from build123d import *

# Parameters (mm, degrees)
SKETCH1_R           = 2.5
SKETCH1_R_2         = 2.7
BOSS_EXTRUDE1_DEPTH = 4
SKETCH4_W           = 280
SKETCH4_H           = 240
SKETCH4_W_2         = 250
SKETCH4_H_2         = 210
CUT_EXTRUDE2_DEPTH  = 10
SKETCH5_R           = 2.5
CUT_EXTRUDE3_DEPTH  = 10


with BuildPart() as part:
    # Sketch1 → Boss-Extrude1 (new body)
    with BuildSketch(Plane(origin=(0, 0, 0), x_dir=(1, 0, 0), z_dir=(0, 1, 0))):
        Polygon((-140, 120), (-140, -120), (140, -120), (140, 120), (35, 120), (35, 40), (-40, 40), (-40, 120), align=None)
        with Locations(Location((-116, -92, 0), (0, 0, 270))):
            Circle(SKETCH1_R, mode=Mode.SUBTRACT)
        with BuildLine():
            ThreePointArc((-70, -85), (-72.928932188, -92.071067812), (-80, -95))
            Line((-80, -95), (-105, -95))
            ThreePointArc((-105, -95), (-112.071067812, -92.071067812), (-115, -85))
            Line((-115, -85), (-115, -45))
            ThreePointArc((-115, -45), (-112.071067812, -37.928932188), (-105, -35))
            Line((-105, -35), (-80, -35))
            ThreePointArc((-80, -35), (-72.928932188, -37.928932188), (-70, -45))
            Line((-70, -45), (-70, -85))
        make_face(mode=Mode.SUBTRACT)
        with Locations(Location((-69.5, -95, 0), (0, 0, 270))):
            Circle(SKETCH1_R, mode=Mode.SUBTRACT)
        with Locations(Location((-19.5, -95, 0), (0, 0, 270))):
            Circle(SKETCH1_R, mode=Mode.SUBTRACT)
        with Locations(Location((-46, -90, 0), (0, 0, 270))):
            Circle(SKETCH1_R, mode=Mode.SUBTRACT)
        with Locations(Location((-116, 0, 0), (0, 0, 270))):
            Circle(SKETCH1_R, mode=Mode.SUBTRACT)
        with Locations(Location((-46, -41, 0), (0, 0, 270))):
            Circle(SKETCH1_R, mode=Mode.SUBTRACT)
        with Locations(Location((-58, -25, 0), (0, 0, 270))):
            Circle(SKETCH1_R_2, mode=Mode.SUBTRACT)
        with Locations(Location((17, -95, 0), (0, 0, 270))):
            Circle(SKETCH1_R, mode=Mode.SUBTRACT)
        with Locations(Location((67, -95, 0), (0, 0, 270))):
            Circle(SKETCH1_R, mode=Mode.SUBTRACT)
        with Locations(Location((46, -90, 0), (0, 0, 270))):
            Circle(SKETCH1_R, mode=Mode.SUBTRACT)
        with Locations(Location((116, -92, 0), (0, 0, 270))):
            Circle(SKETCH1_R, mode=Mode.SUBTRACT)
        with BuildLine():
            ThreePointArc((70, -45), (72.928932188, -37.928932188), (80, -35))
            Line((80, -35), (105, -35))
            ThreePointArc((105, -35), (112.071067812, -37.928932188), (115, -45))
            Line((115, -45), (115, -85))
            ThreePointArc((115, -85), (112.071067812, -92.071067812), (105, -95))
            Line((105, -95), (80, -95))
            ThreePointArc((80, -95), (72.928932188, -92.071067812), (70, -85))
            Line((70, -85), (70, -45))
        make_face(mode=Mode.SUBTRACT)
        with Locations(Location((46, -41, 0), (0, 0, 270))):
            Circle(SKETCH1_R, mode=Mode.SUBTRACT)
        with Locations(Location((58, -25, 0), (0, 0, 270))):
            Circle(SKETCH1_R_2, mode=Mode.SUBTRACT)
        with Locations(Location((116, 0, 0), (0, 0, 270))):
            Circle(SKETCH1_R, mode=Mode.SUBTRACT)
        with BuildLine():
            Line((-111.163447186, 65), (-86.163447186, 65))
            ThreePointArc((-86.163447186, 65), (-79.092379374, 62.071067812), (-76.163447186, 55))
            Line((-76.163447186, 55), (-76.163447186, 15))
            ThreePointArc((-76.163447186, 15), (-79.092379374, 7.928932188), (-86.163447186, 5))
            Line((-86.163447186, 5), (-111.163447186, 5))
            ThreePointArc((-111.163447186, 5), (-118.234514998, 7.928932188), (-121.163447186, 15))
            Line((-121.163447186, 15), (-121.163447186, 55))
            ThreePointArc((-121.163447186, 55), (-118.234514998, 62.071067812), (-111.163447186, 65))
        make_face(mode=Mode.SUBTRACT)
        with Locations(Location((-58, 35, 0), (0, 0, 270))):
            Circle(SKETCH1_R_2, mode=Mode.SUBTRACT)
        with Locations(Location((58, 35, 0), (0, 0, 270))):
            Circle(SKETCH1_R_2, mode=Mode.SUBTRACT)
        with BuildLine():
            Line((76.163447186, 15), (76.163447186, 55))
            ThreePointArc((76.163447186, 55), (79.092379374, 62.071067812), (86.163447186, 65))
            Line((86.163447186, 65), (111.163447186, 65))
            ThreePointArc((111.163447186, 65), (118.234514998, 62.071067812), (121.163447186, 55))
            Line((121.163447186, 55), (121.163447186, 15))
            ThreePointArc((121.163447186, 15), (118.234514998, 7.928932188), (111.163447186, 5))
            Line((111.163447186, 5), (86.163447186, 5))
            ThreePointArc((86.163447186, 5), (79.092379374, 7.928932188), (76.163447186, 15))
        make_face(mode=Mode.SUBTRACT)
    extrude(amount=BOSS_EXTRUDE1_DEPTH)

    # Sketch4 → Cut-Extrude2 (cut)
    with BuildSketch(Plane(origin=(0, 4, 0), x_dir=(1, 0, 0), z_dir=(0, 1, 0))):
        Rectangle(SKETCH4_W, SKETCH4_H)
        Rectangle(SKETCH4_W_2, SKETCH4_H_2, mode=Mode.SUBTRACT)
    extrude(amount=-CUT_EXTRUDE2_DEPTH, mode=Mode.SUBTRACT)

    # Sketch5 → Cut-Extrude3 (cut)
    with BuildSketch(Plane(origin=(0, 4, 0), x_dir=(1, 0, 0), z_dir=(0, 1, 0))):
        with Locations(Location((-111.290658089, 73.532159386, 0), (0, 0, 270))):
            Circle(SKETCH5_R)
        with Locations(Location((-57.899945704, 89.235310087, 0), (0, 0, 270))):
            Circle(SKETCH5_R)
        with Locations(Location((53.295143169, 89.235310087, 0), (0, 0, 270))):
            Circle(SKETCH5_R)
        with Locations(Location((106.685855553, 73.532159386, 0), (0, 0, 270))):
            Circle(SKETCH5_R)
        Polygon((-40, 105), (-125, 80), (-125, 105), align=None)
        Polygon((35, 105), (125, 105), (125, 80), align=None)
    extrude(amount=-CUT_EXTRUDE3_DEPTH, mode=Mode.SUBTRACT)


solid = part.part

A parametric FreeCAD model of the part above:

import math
import FreeCAD as App
import Part
import Sketcher

V = App.Vector


def add_polygon(sketch, points):
    """Adds a closed chain of lines whose ends are joined by coincident constraints."""
    first, n = sketch.GeometryCount, len(points)
    for a, b in zip(points, points[1:] + points[:1]):
        sketch.addGeometry(Part.LineSegment(App.Vector(*a, 0), App.Vector(*b, 0)), False)
    for i in range(n):
        sketch.addConstraint(Sketcher.Constraint("Coincident", first + i, 2, first + (i + 1) % n, 1))

doc = App.newDocument("Part")
body = doc.addObject("PartDesign::Body", "Body")

# Sketch on XZ plane
sketch1 = body.newObject("Sketcher::SketchObject", "Sketch")
sketch1.AttachmentSupport = (doc.getObject("XZ_Plane"), [""])
sketch1.MapMode = "FlatFace"
add_polygon(sketch1, [(-140, -120), (-140, 120), (140, 120), (140, -120), (35, -120), (35, -40), (-40, -40), (-40, -120)])  # lines 0-7
sketch1.addGeometry(Part.Circle(V(-116, 92, 0), V(0, 0, 1), 2.5), False)  # 8
sketch1.addGeometry(Part.Circle(V(-69.5, 95, 0), V(0, 0, 1), 2.5), False)  # 9
sketch1.addGeometry(Part.LineSegment(V(-70, 45, 0), V(-70, 85, 0)), False)  # 10
sketch1.addGeometry(Part.ArcOfCircle(Part.Circle(V(-80, 85, 0), V(0, 0, 1), 10), math.radians(0), math.radians(90)), False)  # 11
sketch1.addGeometry(Part.LineSegment(V(-80, 95, 0), V(-105, 95, 0)), False)  # 12
sketch1.addGeometry(Part.ArcOfCircle(Part.Circle(V(-105, 85, 0), V(0, 0, 1), 10), math.radians(90), math.radians(180)), False)  # 13
sketch1.addGeometry(Part.LineSegment(V(-115, 85, 0), V(-115, 45, 0)), False)  # 14
sketch1.addGeometry(Part.ArcOfCircle(Part.Circle(V(-105, 45, 0), V(0, 0, 1), 10), math.radians(180), math.radians(270)), False)  # 15
sketch1.addGeometry(Part.LineSegment(V(-105, 35, 0), V(-80, 35, 0)), False)  # 16
sketch1.addGeometry(Part.ArcOfCircle(Part.Circle(V(-80, 45, 0), V(0, 0, 1), 10), math.radians(-90), math.radians(0)), False)  # 17
sketch1.addGeometry(Part.Circle(V(-46, 90, 0), V(0, 0, 1), 2.5), False)  # 18
sketch1.addGeometry(Part.Circle(V(-19.5, 95, 0), V(0, 0, 1), 2.5), False)  # 19
sketch1.addGeometry(Part.Circle(V(-46, 41, 0), V(0, 0, 1), 2.5), False)  # 20
sketch1.addGeometry(Part.Circle(V(-58, 25, 0), V(0, 0, 1), 2.7), False)  # 21
sketch1.addGeometry(Part.Circle(V(17, 95, 0), V(0, 0, 1), 2.5), False)  # 22
sketch1.addGeometry(Part.Circle(V(46, 90, 0), V(0, 0, 1), 2.5), False)  # 23
sketch1.addGeometry(Part.Circle(V(67, 95, 0), V(0, 0, 1), 2.5), False)  # 24
sketch1.addGeometry(Part.Circle(V(116, 92, 0), V(0, 0, 1), 2.5), False)  # 25
sketch1.addGeometry(Part.LineSegment(V(70, 85, 0), V(70, 45, 0)), False)  # 26
sketch1.addGeometry(Part.ArcOfCircle(Part.Circle(V(80, 45, 0), V(0, 0, 1), 10), math.radians(180), math.radians(270)), False)  # 27
sketch1.addGeometry(Part.LineSegment(V(80, 35, 0), V(105, 35, 0)), False)  # 28
sketch1.addGeometry(Part.ArcOfCircle(Part.Circle(V(105, 45, 0), V(0, 0, 1), 10), math.radians(-90), math.radians(0)), False)  # 29
sketch1.addGeometry(Part.LineSegment(V(115, 45, 0), V(115, 85, 0)), False)  # 30
sketch1.addGeometry(Part.ArcOfCircle(Part.Circle(V(105, 85, 0), V(0, 0, 1), 10), math.radians(0), math.radians(90)), False)  # 31
sketch1.addGeometry(Part.LineSegment(V(105, 95, 0), V(80, 95, 0)), False)  # 32
sketch1.addGeometry(Part.ArcOfCircle(Part.Circle(V(80, 85, 0), V(0, 0, 1), 10), math.radians(90), math.radians(180)), False)  # 33
sketch1.addGeometry(Part.Circle(V(46, 41, 0), V(0, 0, 1), 2.5), False)  # 34
sketch1.addGeometry(Part.Circle(V(58, 25, 0), V(0, 0, 1), 2.7), False)  # 35
sketch1.addGeometry(Part.Circle(V(-116, 0, 0), V(0, 0, 1), 2.5), False)  # 36
sketch1.addGeometry(Part.ArcOfCircle(Part.Circle(V(-111.2, -55, 0), V(0, 0, 1), 10), math.radians(180), math.radians(270)), False)  # 37
sketch1.addGeometry(Part.LineSegment(V(-111.2, -65, 0), V(-86.2, -65, 0)), False)  # 38
sketch1.addGeometry(Part.ArcOfCircle(Part.Circle(V(-86.2, -55, 0), V(0, 0, 1), 10), math.radians(-90), math.radians(0)), False)  # 39
sketch1.addGeometry(Part.LineSegment(V(-76.2, -55, 0), V(-76.2, -15, 0)), False)  # 40
sketch1.addGeometry(Part.ArcOfCircle(Part.Circle(V(-86.2, -15, 0), V(0, 0, 1), 10), math.radians(0), math.radians(90)), False)  # 41
sketch1.addGeometry(Part.LineSegment(V(-86.2, -5, 0), V(-111.2, -5, 0)), False)  # 42
sketch1.addGeometry(Part.ArcOfCircle(Part.Circle(V(-111.2, -15, 0), V(0, 0, 1), 10), math.radians(90), math.radians(180)), False)  # 43
sketch1.addGeometry(Part.LineSegment(V(-121.2, -15, 0), V(-121.2, -55, 0)), False)  # 44
sketch1.addGeometry(Part.Circle(V(-58, -35, 0), V(0, 0, 1), 2.7), False)  # 45
sketch1.addGeometry(Part.Circle(V(116, 0, 0), V(0, 0, 1), 2.5), False)  # 46
sketch1.addGeometry(Part.Circle(V(58, -35, 0), V(0, 0, 1), 2.7), False)  # 47
sketch1.addGeometry(Part.ArcOfCircle(Part.Circle(V(86.2, -15, 0), V(0, 0, 1), 10), math.radians(90), math.radians(180)), False)  # 48
sketch1.addGeometry(Part.LineSegment(V(76.2, -15, 0), V(76.2, -55, 0)), False)  # 49
sketch1.addGeometry(Part.ArcOfCircle(Part.Circle(V(86.2, -55, 0), V(0, 0, 1), 10), math.radians(180), math.radians(270)), False)  # 50
sketch1.addGeometry(Part.LineSegment(V(86.2, -65, 0), V(111.2, -65, 0)), False)  # 51
sketch1.addGeometry(Part.ArcOfCircle(Part.Circle(V(111.2, -55, 0), V(0, 0, 1), 10), math.radians(-90), math.radians(0)), False)  # 52
sketch1.addGeometry(Part.LineSegment(V(121.2, -55, 0), V(121.2, -15, 0)), False)  # 53
sketch1.addGeometry(Part.ArcOfCircle(Part.Circle(V(111.2, -15, 0), V(0, 0, 1), 10), math.radians(0), math.radians(90)), False)  # 54
sketch1.addGeometry(Part.LineSegment(V(111.2, -5, 0), V(86.2, -5, 0)), False)  # 55
sketch1.addConstraint([
    Sketcher.Constraint("Tangent", 10, 2, 11, 1),
    Sketcher.Constraint("Tangent", 11, 2, 12, 1),
    Sketcher.Constraint("Tangent", 12, 2, 13, 1),
    Sketcher.Constraint("Tangent", 13, 2, 14, 1),
    Sketcher.Constraint("Tangent", 14, 2, 15, 1),
    Sketcher.Constraint("Tangent", 15, 2, 16, 1),
    Sketcher.Constraint("Tangent", 16, 2, 17, 1),
    Sketcher.Constraint("Tangent", 17, 2, 10, 1),
    Sketcher.Constraint("Tangent", 26, 2, 27, 1),
    Sketcher.Constraint("Tangent", 27, 2, 28, 1),
    Sketcher.Constraint("Tangent", 28, 2, 29, 1),
    Sketcher.Constraint("Tangent", 29, 2, 30, 1),
    Sketcher.Constraint("Tangent", 30, 2, 31, 1),
    Sketcher.Constraint("Tangent", 31, 2, 32, 1),
    Sketcher.Constraint("Tangent", 32, 2, 33, 1),
    Sketcher.Constraint("Tangent", 33, 2, 26, 1),
    Sketcher.Constraint("Tangent", 37, 2, 38, 1),
    Sketcher.Constraint("Tangent", 38, 2, 39, 1),
    Sketcher.Constraint("Tangent", 39, 2, 40, 1),
    Sketcher.Constraint("Tangent", 40, 2, 41, 1),
    Sketcher.Constraint("Tangent", 41, 2, 42, 1),
    Sketcher.Constraint("Tangent", 42, 2, 43, 1),
    Sketcher.Constraint("Tangent", 43, 2, 44, 1),
    Sketcher.Constraint("Tangent", 44, 2, 37, 1),
    Sketcher.Constraint("Tangent", 48, 2, 49, 1),
    Sketcher.Constraint("Tangent", 49, 2, 50, 1),
    Sketcher.Constraint("Tangent", 50, 2, 51, 1),
    Sketcher.Constraint("Tangent", 51, 2, 52, 1),
    Sketcher.Constraint("Tangent", 52, 2, 53, 1),
    Sketcher.Constraint("Tangent", 53, 2, 54, 1),
    Sketcher.Constraint("Tangent", 54, 2, 55, 1),
    Sketcher.Constraint("Tangent", 55, 2, 48, 1),
    Sketcher.Constraint("Vertical", 0),
    Sketcher.Constraint("Horizontal", 1),
    Sketcher.Constraint("Vertical", 2),
    Sketcher.Constraint("Horizontal", 3),
    Sketcher.Constraint("Vertical", 4),
    Sketcher.Constraint("Horizontal", 5),
    Sketcher.Constraint("Vertical", 6),
    Sketcher.Constraint("Horizontal", 7),
    Sketcher.Constraint("Vertical", 10),
    Sketcher.Constraint("Horizontal", 12),
    Sketcher.Constraint("Vertical", 14),
    Sketcher.Constraint("Horizontal", 16),
    Sketcher.Constraint("Vertical", 26),
    Sketcher.Constraint("Horizontal", 28),
    Sketcher.Constraint("Vertical", 30),
    Sketcher.Constraint("Horizontal", 32),
    Sketcher.Constraint("Horizontal", 38),
    Sketcher.Constraint("Vertical", 40),
    Sketcher.Constraint("Horizontal", 42),
    Sketcher.Constraint("Vertical", 44),
    Sketcher.Constraint("Vertical", 49),
    Sketcher.Constraint("Horizontal", 51),
    Sketcher.Constraint("Vertical", 53),
    Sketcher.Constraint("Horizontal", 55),
    Sketcher.Constraint("Equal", 8, 9),
    Sketcher.Constraint("Equal", 11, 13),
    Sketcher.Constraint("Equal", 13, 15),
    Sketcher.Constraint("Equal", 15, 17),
    Sketcher.Constraint("Equal", 9, 18),
    Sketcher.Constraint("Equal", 18, 19),
    Sketcher.Constraint("Equal", 19, 20),
    Sketcher.Constraint("Equal", 20, 22),
    Sketcher.Constraint("Equal", 22, 23),
    Sketcher.Constraint("Equal", 23, 24),
    Sketcher.Constraint("Equal", 24, 25),
    Sketcher.Constraint("Equal", 17, 27),
    Sketcher.Constraint("Equal", 27, 29),
    Sketcher.Constraint("Equal", 29, 31),
    Sketcher.Constraint("Equal", 31, 33),
    Sketcher.Constraint("Equal", 25, 34),
    Sketcher.Constraint("Equal", 21, 35),
    Sketcher.Constraint("Equal", 34, 36),
    Sketcher.Constraint("Equal", 33, 37),
    Sketcher.Constraint("Equal", 37, 39),
    Sketcher.Constraint("Equal", 39, 41),
    Sketcher.Constraint("Equal", 41, 43),
    Sketcher.Constraint("Equal", 35, 45),
    Sketcher.Constraint("Equal", 36, 46),
    Sketcher.Constraint("Equal", 45, 47),
    Sketcher.Constraint("Equal", 43, 48),
    Sketcher.Constraint("Equal", 48, 50),
    Sketcher.Constraint("Equal", 50, 52),
    Sketcher.Constraint("Equal", 52, 54),
    Sketcher.Constraint("Symmetric", 36, 3, 46, 3, -1, 1),
    Sketcher.Constraint("Symmetric", 0, 2, 2, 2, -1, 1),
    Sketcher.Constraint("Symmetric", 18, 3, 23, 3, -2),
    Sketcher.Constraint("Symmetric", 8, 3, 25, 3, -2),
    Sketcher.Constraint("Symmetric", 17, 3, 27, 3, -2),
    Sketcher.Constraint("Symmetric", 13, 3, 31, 3, -2),
    Sketcher.Constraint("Symmetric", 20, 3, 34, 3, -2),
    Sketcher.Constraint("Symmetric", 21, 3, 35, 3, -2),
    Sketcher.Constraint("Symmetric", 45, 3, 47, 3, -2),
    Sketcher.Constraint("Symmetric", 41, 3, 48, 3, -2),
    Sketcher.Constraint("Symmetric", 37, 3, 52, 3, -2),
    Sketcher.Constraint("PointOnObject", 36, 3, -1),
    Sketcher.Constraint("Horizontal", 9, 3, 19, 3),
    Sketcher.Constraint("Horizontal", 19, 3, 22, 3),
    Sketcher.Constraint("Horizontal", 22, 3, 24, 3),
    Sketcher.Constraint("Horizontal", 3, 2, 6, 2),
    Sketcher.Constraint("Horizontal", 24, 3, 11, 2),
    Sketcher.Constraint("Vertical", 18, 3, 20, 3),
    Sketcher.Constraint("Vertical", 8, 3, 36, 3),
    Sketcher.Constraint("Vertical", 21, 3, 45, 3),
    Sketcher.Constraint("Equal", 32, 38),
    Sketcher.Constraint("Equal", 30, 40),
    Sketcher.Constraint("Diameter", 8, 5.0),
    Sketcher.Constraint("Radius", 11, 10.0),
    Sketcher.Constraint("Diameter", 21, 5.4),
    Sketcher.Constraint("DistanceX", 1, 1, 1, 2, 280.0),
    Sketcher.Constraint("DistanceX", 3, 2, 3, 1, 105.0),
    Sketcher.Constraint("DistanceX", 5, 2, 5, 1, 75.0),
    Sketcher.Constraint("DistanceX", 12, 2, 12, 1, 25.0),
    Sketcher.Constraint("DistanceY", 0, 1, 0, 2, 240.0),
    Sketcher.Constraint("DistanceY", 4, 1, 4, 2, 80.0),
    Sketcher.Constraint("DistanceY", 10, 1, 10, 2, 40.0),
    Sketcher.Constraint("DistanceX", 8, 3, -1, 1, 116.0),
    Sketcher.Constraint("DistanceY", -1, 1, 8, 3, 92.0),
    Sketcher.Constraint("DistanceY", -1, 1, 9, 3, 95.0),
    Sketcher.Constraint("DistanceX", 11, 3, -1, 1, 80.0),
    Sketcher.Constraint("DistanceX", 18, 3, -1, 1, 46.0),
    Sketcher.Constraint("DistanceY", -1, 1, 18, 3, 90.0),
    Sketcher.Constraint("DistanceY", -1, 1, 20, 3, 41.0),
    Sketcher.Constraint("DistanceX", 21, 3, -1, 1, 58.0),
    Sketcher.Constraint("DistanceY", -1, 1, 21, 3, 25.0),
    Sketcher.Constraint("DistanceX", -1, 1, 22, 3, 17.0),
    Sketcher.Constraint("DistanceX", -1, 1, 24, 3, 67.0),
    Sketcher.Constraint("DistanceY", 37, 3, -1, 1, 55.0),
    Sketcher.Constraint("DistanceY", 45, 3, -1, 1, 35.0),
    Sketcher.Constraint("DistanceX", 9, 3, -1, 1, 69.5),
    Sketcher.Constraint("DistanceX", 19, 3, -1, 1, 19.5),
    Sketcher.Constraint("DistanceX", 37, 3, -1, 1, 111.163447),
])
pad1 = body.newObject("PartDesign::Pad", "Pad")
pad1.Profile = sketch1
pad1.Length = 4
pad1.Reversed = True

# Sketch on XZ plane
sketch2 = body.newObject("Sketcher::SketchObject", "Sketch001")
sketch2.AttachmentSupport = (doc.getObject("XZ_Plane"), [""])
sketch2.MapMode = "FlatFace"
sketch2.AttachmentOffset = App.Placement(V(0, 0, -4), App.Rotation())
add_polygon(sketch2, [(-140, -120), (-140, 120), (140, 120), (140, -120)])  # lines 0-3
add_polygon(sketch2, [(125, 105), (-125, 105), (-125, -105), (125, -105)])  # lines 4-7
sketch2.addConstraint([
    Sketcher.Constraint("Vertical", 0),
    Sketcher.Constraint("Horizontal", 1),
    Sketcher.Constraint("Vertical", 2),
    Sketcher.Constraint("Horizontal", 3),
    Sketcher.Constraint("Horizontal", 4),
    Sketcher.Constraint("Vertical", 5),
    Sketcher.Constraint("Horizontal", 6),
    Sketcher.Constraint("Vertical", 7),
    Sketcher.Constraint("Symmetric", 0, 2, 2, 2, -1, 1),
    Sketcher.Constraint("Symmetric", 4, 2, 6, 2, -1, 1),
    Sketcher.Constraint("DistanceX", 1, 1, 1, 2, 280.0),
    Sketcher.Constraint("DistanceX", 4, 2, 4, 1, 250.0),
    Sketcher.Constraint("DistanceY", 0, 1, 0, 2, 240.0),
    Sketcher.Constraint("DistanceY", 5, 2, 5, 1, 210.0),
])
pocket1 = body.newObject("PartDesign::Pocket", "Pocket")
pocket1.Profile = sketch2
pocket1.Length = 10
pocket1.Reversed = True

# Sketch on XZ plane
sketch3 = body.newObject("Sketcher::SketchObject", "Sketch002")
sketch3.AttachmentSupport = (doc.getObject("XZ_Plane"), [""])
sketch3.MapMode = "FlatFace"
sketch3.AttachmentOffset = App.Placement(V(0, 0, -4), App.Rotation())
sketch3.addGeometry(Part.Circle(V(-111.3, -73.5, 0), V(0, 0, 1), 2.5), False)  # 0
sketch3.addGeometry(Part.Circle(V(-57.9, -89.2, 0), V(0, 0, 1), 2.5), False)  # 1
sketch3.addGeometry(Part.Circle(V(53.3, -89.2, 0), V(0, 0, 1), 2.5), False)  # 2
sketch3.addGeometry(Part.Circle(V(106.7, -73.5, 0), V(0, 0, 1), 2.5), False)  # 3
add_polygon(sketch3, [(-125, -80), (-40, -105), (-125, -105)])  # lines 4-6
add_polygon(sketch3, [(125, -105), (35, -105), (125, -80)])  # lines 7-9
sketch3.addConstraint([
    Sketcher.Constraint("Horizontal", 5),
    Sketcher.Constraint("Vertical", 6),
    Sketcher.Constraint("Horizontal", 7),
    Sketcher.Constraint("Vertical", 9),
    Sketcher.Constraint("Equal", 0, 1),
    Sketcher.Constraint("Equal", 1, 2),
    Sketcher.Constraint("Equal", 2, 3),
    Sketcher.Constraint("Symmetric", 6, 2, 8, 2, -2),
    Sketcher.Constraint("Horizontal", 1, 3, 2, 3),
    Sketcher.Constraint("Horizontal", 0, 3, 3, 3),
    Sketcher.Constraint("Horizontal", 5, 2, 7, 2),
    Sketcher.Constraint("Diameter", 0, 5.0),
    Sketcher.Constraint("DistanceX", 5, 2, 5, 1, 85.0),
    Sketcher.Constraint("DistanceX", 7, 2, 7, 1, 90.0),
    Sketcher.Constraint("DistanceY", 6, 1, 6, 2, 25.0),
    Sketcher.Constraint("DistanceX", 4, 2, -1, 1, 40.0),
    Sketcher.Constraint("DistanceY", 4, 2, -1, 1, 105.0),
    Sketcher.Constraint("DistanceX", 0, 3, 2, 3, 164.585801),
    Sketcher.Constraint("DistanceX", 1, 3, 3, 3, 164.585801),
    Sketcher.Constraint("DistanceX", 0, 3, -1, 1, 111.290658),
    Sketcher.Constraint("DistanceY", 0, 3, -1, 1, 73.532159),
    Sketcher.Constraint("DistanceY", 1, 3, -1, 1, 89.23531),
    Sketcher.Constraint("DistanceX", 1, 3, 2, 3, 111.195089),
])
pocket2 = body.newObject("PartDesign::Pocket", "Pocket001")
pocket2.Profile = sketch3
pocket2.Length = 10
pocket2.Reversed = True

doc.recompute()
